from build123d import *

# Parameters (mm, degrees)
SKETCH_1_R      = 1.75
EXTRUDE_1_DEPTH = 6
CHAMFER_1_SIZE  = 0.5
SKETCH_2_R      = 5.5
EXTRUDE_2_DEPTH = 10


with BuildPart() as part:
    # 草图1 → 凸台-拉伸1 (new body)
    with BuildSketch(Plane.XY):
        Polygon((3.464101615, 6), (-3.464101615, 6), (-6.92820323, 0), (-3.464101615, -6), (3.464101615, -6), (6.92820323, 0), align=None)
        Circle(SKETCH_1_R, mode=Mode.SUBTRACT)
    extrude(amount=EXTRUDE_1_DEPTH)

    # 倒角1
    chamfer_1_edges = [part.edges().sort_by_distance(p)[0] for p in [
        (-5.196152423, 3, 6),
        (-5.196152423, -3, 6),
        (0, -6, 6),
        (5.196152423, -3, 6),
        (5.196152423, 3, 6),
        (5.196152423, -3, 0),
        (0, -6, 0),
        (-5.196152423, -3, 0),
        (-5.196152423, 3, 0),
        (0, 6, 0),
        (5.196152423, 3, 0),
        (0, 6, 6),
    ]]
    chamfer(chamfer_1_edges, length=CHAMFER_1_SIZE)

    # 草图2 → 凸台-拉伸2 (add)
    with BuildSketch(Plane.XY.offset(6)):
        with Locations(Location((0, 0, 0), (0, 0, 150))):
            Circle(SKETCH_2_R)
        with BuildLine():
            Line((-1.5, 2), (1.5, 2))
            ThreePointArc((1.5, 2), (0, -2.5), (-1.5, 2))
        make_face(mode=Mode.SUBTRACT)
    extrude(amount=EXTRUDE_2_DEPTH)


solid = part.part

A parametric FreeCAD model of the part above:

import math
import FreeCAD as App
import Part
import Sketcher
from FreeCAD import Vector
Q = App.Units.Quantity


def edges_at(feature, points):
    """Names of the edges that pass closest to the given points."""
    edges = feature.Shape.Edges
    near = lambda p: min(range(len(edges)), key=lambda i: edges[i].distToShape(Part.Vertex(*p))[0])
    return sorted({f"Edge{near(p) + 1}" for p in points})


def add_polygon(sketch, points):
    """Adds a closed chain of lines whose ends are joined by coincident constraints."""
    first, n = sketch.GeometryCount, len(points)
    for a, b in zip(points, points[1:] + points[:1]):
        sketch.addGeometry(Part.LineSegment(App.Vector(*a, 0), App.Vector(*b, 0)), False)
    for i in range(n):
        sketch.addConstraint(Sketcher.Constraint("Coincident", first + i, 2, first + (i + 1) % n, 1))

doc = App.newDocument("Part")
body = doc.addObject("PartDesign::Body", "Body")

sketch1 = body.newObject("Sketcher::SketchObject", "Sketch")
sketch1.AttachmentSupport = (doc.getObject("XY_Plane"), [""])
sketch1.MapMode = "FlatFace"
add_polygon(sketch1, [(3.5, 6), (-3.5, 6), (-6.9, 0), (-3.5, -6), (3.5, -6), (6.9, 0)])
sketch1.addGeometry(Part.Circle(Vector(0, 0, 0), Vector(0, 0, 1), 1.8), False)
sketch1.addConstraint(Sketcher.Constraint("Horizontal", 0))
sketch1.addConstraint(Sketcher.Constraint("Horizontal", 3))
sketch1.addConstraint(Sketcher.Constraint("Coincident", 6, 3, -1, 1))
sketch1.addConstraint(Sketcher.Constraint("Symmetric", 0, 2, 3, 2, -1, 1))
sketch1.addConstraint(Sketcher.Constraint("Symmetric", 1, 2, 4, 2, -1, 1))
sketch1.addConstraint(Sketcher.Constraint("PointOnObject", 1, 2, -1))
sketch1.addConstraint(Sketcher.Constraint("Parallel", 2, 5))
sketch1.addConstraint(Sketcher.Constraint("Vertical", 0, 2, 2, 2))
sketch1.addConstraint(Sketcher.Constraint("Diameter", 6, Q("3.5 mm")))
sketch1.addConstraint(Sketcher.Constraint("Angle", 1, Q("-120 deg")))
sketch1.addConstraint(Sketcher.Constraint("DistanceY", -1, 1, 0, 2, Q("6 mm")))
sketch1.addConstraint(Sketcher.Constraint("DistanceX", 0, 2, -1, 1, Q("3.464102 mm")))
pad1 = body.newObject("PartDesign::Pad", "Pad")
pad1.Profile = sketch1
pad1.Length = 6
doc.recompute()

chamfer = body.newObject("PartDesign::Chamfer", "Chamfer")
chamfer.Base = (pad1, edges_at(pad1, [
    (-5.196, 3, 6),
    (-5.196, -3, 6),
    (0, -6, 6),
    (5.196, -3, 6),
    (5.196, 3, 6),
    (5.196, -3, 0),
    (0, -6, 0),
    (-5.196, -3, 0),
    (-5.196, 3, 0),
    (0, 6, 0),
    (5.196, 3, 0),
    (0, 6, 6),
]))
chamfer.Size = 0.5

sketch2 = body.newObject("Sketcher::SketchObject", "Sketch001")
sketch2.AttachmentSupport = (doc.getObject("XY_Plane"), [""])
sketch2.MapMode = "FlatFace"
sketch2.AttachmentOffset = App.Placement(Vector(0, 0, 6), App.Rotation())
sketch2.addGeometry(Part.Circle(Vector(0, 0, 0), Vector(0, 0, 1), 5.5), False)
sketch2.addGeometry(Part.ArcOfCircle(Part.Circle(Vector(0, 0, 0), Vector(0, 0, 1), 2.5), math.radians(127), math.radians(413)), False)
sketch2.addGeometry(Part.LineSegment(Vector(-1.5, 2, 0), Vector(1.5, 2, 0)), False)
sketch2.addConstraint(Sketcher.Constraint("Coincident", 1, 1, 2, 1))
sketch2.addConstraint(Sketcher.Constraint("Coincident", 2, 2, 1, 2))
sketch2.addConstraint(Sketcher.Constraint("Horizontal", 2))
sketch2.addConstraint(Sketcher.Constraint("Coincident", 0, 3, -1, 1))
sketch2.addConstraint(Sketcher.Constraint("Coincident", 1, 3, -1, 1))
sketch2.addConstraint(Sketcher.Constraint("Diameter", 0, Q("11 mm")))
sketch2.addConstraint(Sketcher.Constraint("Radius", 1, Q("2.5 mm")))
sketch2.addConstraint(Sketcher.Constraint("DistanceX", 2, 1, 2, 2, Q("3 mm")))
pad2 = body.newObject("PartDesign::Pad", "Pad001")
pad2.Profile = sketch2
pad2.Length = 10

doc.recompute()
